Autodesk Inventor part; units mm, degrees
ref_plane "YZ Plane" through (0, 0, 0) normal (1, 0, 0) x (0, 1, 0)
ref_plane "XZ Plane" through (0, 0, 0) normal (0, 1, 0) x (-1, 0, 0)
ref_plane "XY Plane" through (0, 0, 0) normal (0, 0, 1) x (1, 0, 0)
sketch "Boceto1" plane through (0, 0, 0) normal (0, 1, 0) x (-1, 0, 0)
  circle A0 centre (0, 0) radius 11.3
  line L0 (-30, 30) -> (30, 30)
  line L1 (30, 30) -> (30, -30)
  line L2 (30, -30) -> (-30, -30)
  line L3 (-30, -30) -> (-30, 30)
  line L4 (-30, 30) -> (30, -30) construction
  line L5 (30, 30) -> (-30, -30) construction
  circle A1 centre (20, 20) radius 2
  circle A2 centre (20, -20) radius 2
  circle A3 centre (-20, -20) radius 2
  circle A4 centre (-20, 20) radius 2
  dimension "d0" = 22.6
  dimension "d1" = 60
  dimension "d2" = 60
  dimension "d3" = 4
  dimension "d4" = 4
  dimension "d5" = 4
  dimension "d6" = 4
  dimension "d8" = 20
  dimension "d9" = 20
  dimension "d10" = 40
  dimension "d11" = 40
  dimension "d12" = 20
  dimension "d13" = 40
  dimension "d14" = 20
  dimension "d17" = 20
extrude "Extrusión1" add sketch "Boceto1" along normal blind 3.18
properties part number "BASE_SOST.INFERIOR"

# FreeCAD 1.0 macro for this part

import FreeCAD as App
import Part
import Sketcher
from FreeCAD import Vector

doc = App.newDocument("Part")
body = doc.addObject("PartDesign::Body", "Body")

sketch1 = doc.addObject("Sketcher::SketchObject", "Sketch")
body.addObject(sketch1)
sketch1.AttachmentSupport = (doc.XZ_Plane, [""])
sketch1.MapMode = "FlatFace"
sketch1.addGeometry([
    Part.LineSegment(Vector(-30, 30, 0), Vector(30, 30, 0)),
    Part.LineSegment(Vector(30, 30, 0), Vector(30, -30, 0)),
    Part.LineSegment(Vector(30, -30, 0), Vector(-30, -30, 0)),
    Part.LineSegment(Vector(-30, -30, 0), Vector(-30, 30, 0)),
    Part.Circle(Vector(20, -20, 0), Vector(0, 0, 1), 2),
    Part.Circle(Vector(-20, -20, 0), Vector(0, 0, 1), 2),
    Part.Circle(Vector(20, 20, 0), Vector(0, 0, 1), 2),
    Part.Circle(Vector(0, 0, 0), Vector(0, 0, 1), 11.3),
    Part.Circle(Vector(-20, 20, 0), Vector(0, 0, 1), 2),
], False)
sketch1.addConstraint([
    Sketcher.Constraint("Coincident", 0, 2, 1, 1),
    Sketcher.Constraint("Coincident", 1, 2, 2, 1),
    Sketcher.Constraint("Coincident", 2, 2, 3, 1),
    Sketcher.Constraint("Coincident", 3, 2, 0, 1),
    Sketcher.Constraint("Horizontal", 0),
    Sketcher.Constraint("Vertical", 1),
    Sketcher.Constraint("Horizontal", 2),
    Sketcher.Constraint("Vertical", 3),
    Sketcher.Constraint("Coincident", 7, 3, -1, 1),
    Sketcher.Constraint("Equal", 4, 5),
    Sketcher.Constraint("Equal", 5, 6),
    Sketcher.Constraint("Equal", 6, 8),
    Sketcher.Constraint("Symmetric", 5, 3, 6, 3, -1, 1),
    Sketcher.Constraint("Symmetric", 4, 3, 8, 3, -1, 1),
    Sketcher.Constraint("Symmetric", 0, 2, 2, 2, -1, 1),
    Sketcher.Constraint("Symmetric", 4, 3, 5, 3, -2),
    Sketcher.Constraint("Equal", 2, 1),
    Sketcher.Constraint("Diameter", 4, 4.0),
    Sketcher.Constraint("Diameter", 7, 22.6),
    Sketcher.Constraint("DistanceX", 0, 1, 0, 2, 60.0),
    Sketcher.Constraint("DistanceX", -1, 1, 4, 3, 20.0),
    Sketcher.Constraint("DistanceY", 4, 3, -1, 1, 20.0),
])
pad1 = doc.addObject("PartDesign::Pad", "Pad")
body.addObject(pad1)
pad1.Profile = sketch1
pad1.Length = 3.18
pad1.Reversed = True

doc.recompute()
